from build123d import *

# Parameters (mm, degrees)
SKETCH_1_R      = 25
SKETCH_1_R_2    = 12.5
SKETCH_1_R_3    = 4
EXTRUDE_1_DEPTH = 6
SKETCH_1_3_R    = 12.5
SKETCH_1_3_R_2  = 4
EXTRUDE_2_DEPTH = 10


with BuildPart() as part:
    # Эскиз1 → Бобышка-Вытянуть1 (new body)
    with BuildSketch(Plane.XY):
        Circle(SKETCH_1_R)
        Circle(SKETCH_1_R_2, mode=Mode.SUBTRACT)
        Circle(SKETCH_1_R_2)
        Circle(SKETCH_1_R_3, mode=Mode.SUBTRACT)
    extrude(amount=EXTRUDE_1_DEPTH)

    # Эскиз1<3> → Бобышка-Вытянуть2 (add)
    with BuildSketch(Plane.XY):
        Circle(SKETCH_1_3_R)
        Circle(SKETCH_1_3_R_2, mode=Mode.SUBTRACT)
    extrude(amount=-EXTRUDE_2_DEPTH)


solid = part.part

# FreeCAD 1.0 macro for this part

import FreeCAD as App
import Part
import Sketcher

doc = App.newDocument("Part")
body = doc.addObject("PartDesign::Body", "Body")

# Sketch on XY plane
sketch1 = body.newObject("Sketcher::SketchObject", "Sketch")
sketch1.AttachmentSupport = (doc.getObject("XY_Plane"), [""])
sketch1.MapMode = "FlatFace"
sketch1.addGeometry(Part.Circle(App.Vector(0, 0, 0), App.Vector(0, 0, 1), 25), False)
sketch1.addGeometry(Part.Circle(App.Vector(0, 0, 0), App.Vector(0, 0, 1), 4), False)
sketch1.addConstraint(Sketcher.Constraint("Coincident", 0, 3, -1, 1))
sketch1.addConstraint(Sketcher.Constraint("Coincident", 1, 3, -1, 1))
sketch1.addConstraint(Sketcher.Constraint("Diameter", 0, 50.0))
sketch1.addConstraint(Sketcher.Constraint("Diameter", 1, 8.0))
pad1 = body.newObject("PartDesign::Pad", "Pad")
pad1.Profile = sketch1
pad1.Length = 6

# Sketch on XY plane
sketch2 = body.newObject("Sketcher::SketchObject", "Sketch001")
sketch2.AttachmentSupport = (doc.getObject("XY_Plane"), [""])
sketch2.MapMode = "FlatFace"
sketch2.addGeometry(Part.Circle(App.Vector(0, 0, 0), App.Vector(0, 0, 1), 12.5), False)
sketch2.addGeometry(Part.Circle(App.Vector(0, 0, 0), App.Vector(0, 0, 1), 4), False)
sketch2.addConstraint(Sketcher.Constraint("Coincident", 0, 3, -1, 1))
sketch2.addConstraint(Sketcher.Constraint("Coincident", 1, 3, -1, 1))
sketch2.addConstraint(Sketcher.Constraint("Diameter", 0, 25.0))
sketch2.addConstraint(Sketcher.Constraint("Diameter", 1, 8.0))
pad2 = body.newObject("PartDesign::Pad", "Pad001")
pad2.Profile = sketch2
pad2.Length = 10
pad2.Reversed = True

doc.recompute()
